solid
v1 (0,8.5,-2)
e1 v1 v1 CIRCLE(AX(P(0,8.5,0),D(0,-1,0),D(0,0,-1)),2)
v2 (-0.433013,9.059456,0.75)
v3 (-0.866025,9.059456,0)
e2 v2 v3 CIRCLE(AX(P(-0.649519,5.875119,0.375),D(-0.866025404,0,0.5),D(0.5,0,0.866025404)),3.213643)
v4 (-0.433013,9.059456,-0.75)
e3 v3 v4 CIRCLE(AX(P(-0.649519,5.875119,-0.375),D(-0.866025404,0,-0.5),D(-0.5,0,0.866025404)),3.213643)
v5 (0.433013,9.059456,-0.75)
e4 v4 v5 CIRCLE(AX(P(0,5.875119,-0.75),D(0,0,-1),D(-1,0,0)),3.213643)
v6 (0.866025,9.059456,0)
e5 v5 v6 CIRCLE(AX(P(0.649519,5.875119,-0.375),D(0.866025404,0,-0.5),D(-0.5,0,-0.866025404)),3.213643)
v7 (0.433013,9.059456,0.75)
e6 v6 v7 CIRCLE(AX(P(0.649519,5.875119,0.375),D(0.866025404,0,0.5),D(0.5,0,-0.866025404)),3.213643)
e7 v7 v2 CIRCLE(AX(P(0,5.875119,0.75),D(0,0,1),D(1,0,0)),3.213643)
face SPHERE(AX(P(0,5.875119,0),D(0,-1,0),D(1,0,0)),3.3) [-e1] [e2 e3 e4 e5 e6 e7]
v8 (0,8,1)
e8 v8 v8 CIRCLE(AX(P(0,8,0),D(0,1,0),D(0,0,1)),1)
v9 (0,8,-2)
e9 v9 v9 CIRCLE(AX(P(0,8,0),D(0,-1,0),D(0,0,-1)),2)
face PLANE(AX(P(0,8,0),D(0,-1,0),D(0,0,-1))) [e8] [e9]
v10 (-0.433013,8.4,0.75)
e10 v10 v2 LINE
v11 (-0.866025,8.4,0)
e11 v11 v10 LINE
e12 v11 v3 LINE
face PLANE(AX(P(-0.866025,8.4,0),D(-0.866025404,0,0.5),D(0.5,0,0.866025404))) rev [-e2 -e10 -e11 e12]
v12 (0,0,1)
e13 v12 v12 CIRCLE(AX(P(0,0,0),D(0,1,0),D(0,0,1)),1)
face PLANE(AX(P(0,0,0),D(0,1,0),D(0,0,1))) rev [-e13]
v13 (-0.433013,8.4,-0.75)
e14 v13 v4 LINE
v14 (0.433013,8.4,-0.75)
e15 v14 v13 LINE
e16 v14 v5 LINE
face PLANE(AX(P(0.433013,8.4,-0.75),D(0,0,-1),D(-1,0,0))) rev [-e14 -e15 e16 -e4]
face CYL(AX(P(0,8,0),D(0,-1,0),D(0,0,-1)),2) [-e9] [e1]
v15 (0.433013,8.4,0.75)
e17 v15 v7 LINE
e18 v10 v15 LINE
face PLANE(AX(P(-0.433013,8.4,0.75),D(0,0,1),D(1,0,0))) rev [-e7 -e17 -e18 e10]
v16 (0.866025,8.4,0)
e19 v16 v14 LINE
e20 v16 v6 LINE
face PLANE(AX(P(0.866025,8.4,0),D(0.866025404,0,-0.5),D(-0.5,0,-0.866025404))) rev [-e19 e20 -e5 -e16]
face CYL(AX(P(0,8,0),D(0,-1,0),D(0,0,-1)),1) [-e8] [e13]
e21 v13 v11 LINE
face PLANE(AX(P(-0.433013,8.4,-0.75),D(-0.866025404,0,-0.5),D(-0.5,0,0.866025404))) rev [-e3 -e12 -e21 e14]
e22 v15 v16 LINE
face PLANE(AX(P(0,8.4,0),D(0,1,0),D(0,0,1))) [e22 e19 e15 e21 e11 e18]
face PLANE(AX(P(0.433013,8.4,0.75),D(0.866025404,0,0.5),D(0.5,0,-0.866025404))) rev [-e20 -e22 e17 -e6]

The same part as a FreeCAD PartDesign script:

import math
import FreeCAD as App
import Part
import Sketcher
Q = App.Units.Quantity

doc = App.newDocument("Part")
body = doc.addObject("PartDesign::Body", "Body")

sketch1 = body.newObject("Sketcher::SketchObject", "Sketch")
sketch1.AttachmentSupport = (doc.getObject("XZ_Plane"), [""])
sketch1.MapMode = "FlatFace"
sketch1.addGeometry(Part.Circle(App.Vector(0, 0, 0), App.Vector(0, 0, 1), 1), False)
sketch1.addConstraint(Sketcher.Constraint("Coincident", 0, 3, -1, 1))
sketch1.addConstraint(Sketcher.Constraint("Diameter", 0, Q("2 mm")))
pad1 = body.newObject("PartDesign::Pad", "Pad")
pad1.Profile = sketch1
pad1.Length = 8
pad1.Reversed = True

sketch2 = body.newObject("Sketcher::SketchObject", "Sketch001")
sketch2.AttachmentSupport = (doc.getObject("XY_Plane"), [""])
sketch2.MapMode = "FlatFace"
sketch2.addGeometry(Part.LineSegment(App.Vector(-2, 8, 0), App.Vector(0, 8, 0)), False)
sketch2.addGeometry(Part.LineSegment(App.Vector(0, 8, 0), App.Vector(0, 9.2, 0)), False)
sketch2.addGeometry(Part.ArcOfCircle(Part.Circle(App.Vector(0, 5.9, 0), App.Vector(0, 0, 1), 3.3), math.radians(90), math.radians(127)), False)
sketch2.addGeometry(Part.LineSegment(App.Vector(-2, 8.5, 0), App.Vector(-2, 8, 0)), False)
sketch2.addConstraint(Sketcher.Constraint("Coincident", 0, 2, 1, 1))
sketch2.addConstraint(Sketcher.Constraint("Coincident", 1, 2, 2, 1))
sketch2.addConstraint(Sketcher.Constraint("Coincident", 2, 2, 3, 1))
sketch2.addConstraint(Sketcher.Constraint("Coincident", 3, 2, 0, 1))
sketch2.addConstraint(Sketcher.Constraint("Horizontal", 0))
sketch2.addConstraint(Sketcher.Constraint("Vertical", 1))
sketch2.addConstraint(Sketcher.Constraint("Vertical", 3))
sketch2.addConstraint(Sketcher.Constraint("PointOnObject", 2, 3, -2))
sketch2.addConstraint(Sketcher.Constraint("PointOnObject", 0, 2, -2))
sketch2.addConstraint(Sketcher.Constraint("Radius", 2, Q("3.3 mm")))
sketch2.addConstraint(Sketcher.Constraint("DistanceX", 0, 1, 0, 2, Q("2 mm")))
sketch2.addConstraint(Sketcher.Constraint("DistanceY", 3, 2, 3, 1, Q("0.5 mm")))
sketch2.addConstraint(Sketcher.Constraint("DistanceY", -1, 1, 0, 2, Q("8 mm")))
revolution = body.newObject("PartDesign::Revolution", "Revolution")
revolution.Profile = sketch2
revolution.ReferenceAxis = (sketch2, ["V_Axis"])
revolution.Angle = 360

sketch3 = body.newObject("Sketcher::SketchObject", "Sketch002")
sketch3.AttachmentSupport = (doc.getObject("XZ_Plane"), [""])
sketch3.MapMode = "FlatFace"
sketch3.AttachmentOffset = App.Placement(App.Vector(0, 0, -9.5), App.Rotation())
sketch3.addGeometry(Part.LineSegment(App.Vector(0.4, 0.8, 0), App.Vector(0.9, 0, 0)), False)
sketch3.addGeometry(Part.LineSegment(App.Vector(0.9, 0, 0), App.Vector(0.4, -0.8, 0)), False)
sketch3.addGeometry(Part.LineSegment(App.Vector(0.4, -0.8, 0), App.Vector(-0.4, -0.8, 0)), False)
sketch3.addGeometry(Part.LineSegment(App.Vector(-0.4, -0.8, 0), App.Vector(-0.9, 0, 0)), False)
sketch3.addGeometry(Part.LineSegment(App.Vector(-0.9, 0, 0), App.Vector(-0.4, 0.8, 0)), False)
sketch3.addGeometry(Part.LineSegment(App.Vector(-0.4, 0.8, 0), App.Vector(0.4, 0.8, 0)), False)
sketch3.addConstraint(Sketcher.Constraint("Coincident", 0, 2, 1, 1))
sketch3.addConstraint(Sketcher.Constraint("Coincident", 1, 2, 2, 1))
sketch3.addConstraint(Sketcher.Constraint("Coincident", 2, 2, 3, 1))
sketch3.addConstraint(Sketcher.Constraint("Coincident", 3, 2, 4, 1))
sketch3.addConstraint(Sketcher.Constraint("Coincident", 4, 2, 5, 1))
sketch3.addConstraint(Sketcher.Constraint("Coincident", 5, 2, 0, 1))
sketch3.addConstraint(Sketcher.Constraint("Horizontal", 2))
sketch3.addConstraint(Sketcher.Constraint("Horizontal", 5))
sketch3.addConstraint(Sketcher.Constraint("Symmetric", 0, 2, 3, 2, -1, 1))
sketch3.addConstraint(Sketcher.Constraint("Symmetric", 1, 2, 4, 2, -1, 1))
sketch3.addConstraint(Sketcher.Constraint("PointOnObject", 0, 2, -1))
sketch3.addConstraint(Sketcher.Constraint("Parallel", 0, 3))
sketch3.addConstraint(Sketcher.Constraint("Vertical", 2, 2, 4, 2))
sketch3.addConstraint(Sketcher.Constraint("Angle", 0, Q("-60 deg")))
sketch3.addConstraint(Sketcher.Constraint("DistanceY", 2, 2, 4, 2, Q("1.5 mm")))
sketch3.addConstraint(Sketcher.Constraint("DistanceX", 2, 2, 2, 1, Q("0.866025 mm")))
pocket1 = body.newObject("PartDesign::Pocket", "Pocket")
pocket1.Profile = sketch3
pocket1.Length = 1.1
pocket1.Reversed = True

doc.recompute()
